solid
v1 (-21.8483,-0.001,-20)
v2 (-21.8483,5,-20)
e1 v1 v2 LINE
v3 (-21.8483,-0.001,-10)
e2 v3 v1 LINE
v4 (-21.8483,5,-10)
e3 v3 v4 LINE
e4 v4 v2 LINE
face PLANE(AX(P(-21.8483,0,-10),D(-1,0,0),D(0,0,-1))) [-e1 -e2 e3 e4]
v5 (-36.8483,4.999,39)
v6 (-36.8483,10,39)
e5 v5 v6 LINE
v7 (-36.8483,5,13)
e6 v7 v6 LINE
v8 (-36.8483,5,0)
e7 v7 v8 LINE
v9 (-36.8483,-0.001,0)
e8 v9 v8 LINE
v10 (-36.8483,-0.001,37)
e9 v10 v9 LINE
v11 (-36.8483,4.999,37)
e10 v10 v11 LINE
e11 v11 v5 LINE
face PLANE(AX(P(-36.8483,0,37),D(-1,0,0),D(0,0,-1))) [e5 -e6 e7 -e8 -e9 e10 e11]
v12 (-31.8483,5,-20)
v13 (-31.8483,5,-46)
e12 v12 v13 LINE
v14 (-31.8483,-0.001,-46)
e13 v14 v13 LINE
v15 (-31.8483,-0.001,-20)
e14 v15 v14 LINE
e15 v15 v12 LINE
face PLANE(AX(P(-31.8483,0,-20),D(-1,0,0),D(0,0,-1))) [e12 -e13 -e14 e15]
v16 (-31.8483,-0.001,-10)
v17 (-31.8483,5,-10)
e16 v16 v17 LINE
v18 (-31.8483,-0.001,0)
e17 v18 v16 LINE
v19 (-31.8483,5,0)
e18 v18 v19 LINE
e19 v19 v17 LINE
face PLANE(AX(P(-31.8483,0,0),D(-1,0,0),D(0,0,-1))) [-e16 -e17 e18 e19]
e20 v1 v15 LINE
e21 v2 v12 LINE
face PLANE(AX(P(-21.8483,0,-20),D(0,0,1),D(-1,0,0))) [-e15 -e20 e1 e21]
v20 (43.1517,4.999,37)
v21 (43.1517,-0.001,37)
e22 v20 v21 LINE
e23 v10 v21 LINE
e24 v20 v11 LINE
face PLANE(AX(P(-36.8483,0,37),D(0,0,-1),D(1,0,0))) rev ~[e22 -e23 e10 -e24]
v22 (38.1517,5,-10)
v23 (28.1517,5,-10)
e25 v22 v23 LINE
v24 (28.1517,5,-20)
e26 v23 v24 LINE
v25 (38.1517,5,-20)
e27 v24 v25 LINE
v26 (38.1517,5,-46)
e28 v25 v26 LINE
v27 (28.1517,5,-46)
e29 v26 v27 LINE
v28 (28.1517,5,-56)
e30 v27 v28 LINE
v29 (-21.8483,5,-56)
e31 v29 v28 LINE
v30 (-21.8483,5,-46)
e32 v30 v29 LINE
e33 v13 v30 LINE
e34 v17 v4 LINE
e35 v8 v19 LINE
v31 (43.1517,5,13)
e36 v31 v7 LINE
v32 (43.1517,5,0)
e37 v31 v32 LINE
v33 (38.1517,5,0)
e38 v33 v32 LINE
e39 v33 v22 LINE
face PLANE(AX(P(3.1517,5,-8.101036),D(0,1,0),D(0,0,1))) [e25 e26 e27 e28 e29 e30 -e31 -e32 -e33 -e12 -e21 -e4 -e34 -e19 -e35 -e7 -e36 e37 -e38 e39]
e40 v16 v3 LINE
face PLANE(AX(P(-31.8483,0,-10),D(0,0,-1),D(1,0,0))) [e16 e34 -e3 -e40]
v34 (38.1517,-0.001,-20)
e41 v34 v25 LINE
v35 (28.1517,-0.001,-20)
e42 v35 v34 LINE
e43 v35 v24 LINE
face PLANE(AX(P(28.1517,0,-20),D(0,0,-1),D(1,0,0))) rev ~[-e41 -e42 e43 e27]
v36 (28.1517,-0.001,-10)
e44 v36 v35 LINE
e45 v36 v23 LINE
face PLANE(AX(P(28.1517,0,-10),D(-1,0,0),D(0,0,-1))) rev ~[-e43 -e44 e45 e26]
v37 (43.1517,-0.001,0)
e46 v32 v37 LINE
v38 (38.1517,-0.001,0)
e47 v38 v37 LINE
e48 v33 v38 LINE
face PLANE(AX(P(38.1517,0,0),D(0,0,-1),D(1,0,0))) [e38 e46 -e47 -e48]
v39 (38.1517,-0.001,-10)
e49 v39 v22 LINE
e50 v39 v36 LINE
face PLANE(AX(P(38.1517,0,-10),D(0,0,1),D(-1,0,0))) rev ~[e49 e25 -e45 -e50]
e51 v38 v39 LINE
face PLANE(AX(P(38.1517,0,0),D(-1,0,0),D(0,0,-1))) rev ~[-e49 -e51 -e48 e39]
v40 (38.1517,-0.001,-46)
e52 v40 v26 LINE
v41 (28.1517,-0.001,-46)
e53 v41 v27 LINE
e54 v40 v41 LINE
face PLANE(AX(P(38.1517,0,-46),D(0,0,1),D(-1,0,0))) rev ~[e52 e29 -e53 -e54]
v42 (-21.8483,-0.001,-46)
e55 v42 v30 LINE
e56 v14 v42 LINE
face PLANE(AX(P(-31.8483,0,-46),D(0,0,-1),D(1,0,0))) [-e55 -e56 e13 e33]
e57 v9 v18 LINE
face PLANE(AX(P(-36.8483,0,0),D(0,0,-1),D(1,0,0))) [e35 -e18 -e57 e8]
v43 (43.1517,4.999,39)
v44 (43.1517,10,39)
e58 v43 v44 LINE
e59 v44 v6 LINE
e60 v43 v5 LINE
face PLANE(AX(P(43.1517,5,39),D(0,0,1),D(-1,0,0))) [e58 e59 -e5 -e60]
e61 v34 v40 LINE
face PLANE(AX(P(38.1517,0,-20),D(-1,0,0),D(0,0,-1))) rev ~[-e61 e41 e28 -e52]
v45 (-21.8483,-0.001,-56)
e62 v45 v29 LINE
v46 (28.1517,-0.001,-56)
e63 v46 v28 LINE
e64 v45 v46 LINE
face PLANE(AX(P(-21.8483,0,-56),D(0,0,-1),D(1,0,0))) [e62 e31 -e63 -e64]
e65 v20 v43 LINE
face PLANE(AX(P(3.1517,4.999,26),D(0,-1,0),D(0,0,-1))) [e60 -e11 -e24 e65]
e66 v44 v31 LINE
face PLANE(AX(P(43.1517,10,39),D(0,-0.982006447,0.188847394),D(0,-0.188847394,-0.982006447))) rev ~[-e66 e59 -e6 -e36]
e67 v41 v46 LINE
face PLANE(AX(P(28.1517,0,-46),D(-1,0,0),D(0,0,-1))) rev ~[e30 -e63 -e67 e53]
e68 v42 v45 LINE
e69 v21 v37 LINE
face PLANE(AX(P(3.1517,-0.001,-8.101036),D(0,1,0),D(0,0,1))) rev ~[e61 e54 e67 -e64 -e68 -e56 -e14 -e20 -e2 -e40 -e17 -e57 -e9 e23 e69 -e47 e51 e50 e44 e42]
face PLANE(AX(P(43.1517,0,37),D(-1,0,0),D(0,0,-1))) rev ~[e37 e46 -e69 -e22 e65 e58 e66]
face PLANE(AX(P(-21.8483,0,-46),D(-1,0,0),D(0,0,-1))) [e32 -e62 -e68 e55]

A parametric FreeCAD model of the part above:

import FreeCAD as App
import Part
import Sketcher
from FreeCAD import Vector
Q = App.Units.Quantity

doc = App.newDocument("Part")
body = doc.addObject("PartDesign::Body", "Body")

# Sketch on XZ plane
sketch1 = body.newObject("Sketcher::SketchObject", "Sketch")
sketch1.AttachmentSupport = (doc.getObject("XZ_Plane"), [""])
sketch1.MapMode = "FlatFace"
sketch1.addGeometry([
    Part.LineSegment(Vector(38.1517, -10, 0), Vector(38.1517, 0, 0)),  # 0
    Part.LineSegment(Vector(38.1517, 0, 0), Vector(43.1517, 0, 0)),  # 1
    Part.LineSegment(Vector(43.1517, 0, 0), Vector(43.1517, 37, 0)),  # 2
    Part.LineSegment(Vector(43.1517, 37, 0), Vector(-36.8483, 37, 0)),  # 3
    Part.LineSegment(Vector(-36.8483, 37, 0), Vector(-36.8483, 0, 0)),  # 4
    Part.LineSegment(Vector(-36.8483, 0, 0), Vector(-31.8483, 0, 0)),  # 5
    Part.LineSegment(Vector(-31.8483, 0, 0), Vector(-31.8483, -10, 0)),  # 6
    Part.LineSegment(Vector(-31.8483, -10, 0), Vector(-21.8483, -10, 0)),  # 7
    Part.LineSegment(Vector(-21.8483, -10, 0), Vector(-21.8483, -20, 0)),  # 8
    Part.LineSegment(Vector(-21.8483, -20, 0), Vector(-31.8483, -20, 0)),  # 9
    Part.LineSegment(Vector(-31.8483, -20, 0), Vector(-31.8483, -46, 0)),  # 10
    Part.LineSegment(Vector(-31.8483, -46, 0), Vector(-21.8483, -46, 0)),  # 11
    Part.LineSegment(Vector(-21.8483, -46, 0), Vector(-21.8483, -56, 0)),  # 12
    Part.LineSegment(Vector(-21.8483, -56, 0), Vector(28.1517, -56, 0)),  # 13
    Part.LineSegment(Vector(28.1517, -56, 0), Vector(28.1517, -46, 0)),  # 14
    Part.LineSegment(Vector(28.1517, -46, 0), Vector(38.1517, -46, 0)),  # 15
    Part.LineSegment(Vector(38.1517, -46, 0), Vector(38.1517, -20, 0)),  # 16
    Part.LineSegment(Vector(38.1517, -20, 0), Vector(28.1517, -20, 0)),  # 17
    Part.LineSegment(Vector(28.1517, -20, 0), Vector(28.1517, -10, 0)),  # 18
    Part.LineSegment(Vector(28.1517, -10, 0), Vector(38.1517, -10, 0)),  # 19
], False)
sketch1.addConstraint([
    Sketcher.Constraint("Coincident", 0, 2, 1, 1),
    Sketcher.Constraint("Coincident", 1, 2, 2, 1),
    Sketcher.Constraint("Coincident", 2, 2, 3, 1),
    Sketcher.Constraint("Coincident", 3, 2, 4, 1),
    Sketcher.Constraint("Coincident", 4, 2, 5, 1),
    Sketcher.Constraint("Coincident", 5, 2, 6, 1),
    Sketcher.Constraint("Coincident", 6, 2, 7, 1),
    Sketcher.Constraint("Coincident", 7, 2, 8, 1),
    Sketcher.Constraint("Coincident", 8, 2, 9, 1),
    Sketcher.Constraint("Coincident", 9, 2, 10, 1),
    Sketcher.Constraint("Coincident", 10, 2, 11, 1),
    Sketcher.Constraint("Coincident", 11, 2, 12, 1),
    Sketcher.Constraint("Coincident", 12, 2, 13, 1),
    Sketcher.Constraint("Coincident", 13, 2, 14, 1),
    Sketcher.Constraint("Coincident", 14, 2, 15, 1),
    Sketcher.Constraint("Coincident", 15, 2, 16, 1),
    Sketcher.Constraint("Coincident", 16, 2, 17, 1),
    Sketcher.Constraint("Coincident", 17, 2, 18, 1),
    Sketcher.Constraint("Coincident", 18, 2, 19, 1),
    Sketcher.Constraint("Coincident", 19, 2, 0, 1),
    Sketcher.Constraint("Vertical", 0),
    Sketcher.Constraint("Horizontal", 1),
    Sketcher.Constraint("Vertical", 2),
    Sketcher.Constraint("Horizontal", 3),
    Sketcher.Constraint("Vertical", 4),
    Sketcher.Constraint("Horizontal", 5),
    Sketcher.Constraint("Vertical", 6),
    Sketcher.Constraint("Horizontal", 7),
    Sketcher.Constraint("Vertical", 8),
    Sketcher.Constraint("Horizontal", 9),
    Sketcher.Constraint("Vertical", 10),
    Sketcher.Constraint("Horizontal", 11),
    Sketcher.Constraint("Vertical", 12),
    Sketcher.Constraint("Horizontal", 13),
    Sketcher.Constraint("Vertical", 14),
    Sketcher.Constraint("Horizontal", 15),
    Sketcher.Constraint("Vertical", 16),
    Sketcher.Constraint("Horizontal", 17),
    Sketcher.Constraint("Vertical", 18),
    Sketcher.Constraint("Horizontal", 19),
    Sketcher.Constraint("PointOnObject", 0, 2, -1),
    Sketcher.Constraint("PointOnObject", 4, 2, -1),
    Sketcher.Constraint("Horizontal", 11, 2, 14, 2),
    Sketcher.Constraint("Horizontal", 9, 2, 16, 2),
    Sketcher.Constraint("Horizontal", 7, 2, 18, 2),
    Sketcher.Constraint("Vertical", 6, 2, 9, 2),
    Sketcher.Constraint("Vertical", 8, 2, 11, 2),
    Sketcher.Constraint("Vertical", 0, 2, 15, 2),
    Sketcher.Constraint("Vertical", 14, 2, 17, 2),
    Sketcher.Constraint("Equal", 1, 5),
    Sketcher.Constraint("Equal", 11, 15),
    Sketcher.Constraint("Equal", 19, 0),
    Sketcher.Constraint("Equal", 6, 8),
    Sketcher.Constraint("Equal", 8, 12),
    Sketcher.Constraint("DistanceX", 1, 1, 1, 2, Q("5 mm")),
    Sketcher.Constraint("DistanceX", 3, 2, 3, 1, Q("80 mm")),
    Sketcher.Constraint("DistanceX", 7, 1, 7, 2, Q("10 mm")),
    Sketcher.Constraint("DistanceY", 2, 1, 2, 2, Q("37 mm")),
    Sketcher.Constraint("DistanceY", 10, 2, 10, 1, Q("26 mm")),
    Sketcher.Constraint("DistanceX", -1, 1, 0, 2, Q("38.1517 mm")),
])
pad1 = body.newObject("PartDesign::Pad", "Pad")
pad1.Profile = sketch1
pad1.Type = "TwoLengths"
pad1.Length = 5
pad1.Length2 = 0.001
pad1.Reversed = True

# Sketch on XZ plane
sketch2 = body.newObject("Sketcher::SketchObject", "Sketch001")
sketch2.AttachmentSupport = (doc.getObject("XZ_Plane"), [""])
sketch2.MapMode = "FlatFace"
sketch2.AttachmentOffset = App.Placement(Vector(0, 0, -5), App.Rotation())
sketch2.addGeometry([
    Part.LineSegment(Vector(-36.8483, 13, 0), Vector(-36.8483, 39, 0)),
    Part.LineSegment(Vector(-36.8483, 39, 0), Vector(43.1517, 39, 0)),
    Part.LineSegment(Vector(43.1517, 39, 0), Vector(43.1517, 13, 0)),
    Part.LineSegment(Vector(43.1517, 13, 0), Vector(-36.8483, 13, 0)),
], False)
sketch2.addConstraint([
    Sketcher.Constraint("Coincident", 0, 2, 1, 1),
    Sketcher.Constraint("Coincident", 1, 2, 2, 1),
    Sketcher.Constraint("Coincident", 2, 2, 3, 1),
    Sketcher.Constraint("Coincident", 3, 2, 0, 1),
    Sketcher.Constraint("Vertical", 0),
    Sketcher.Constraint("Horizontal", 1),
    Sketcher.Constraint("Vertical", 2),
    Sketcher.Constraint("Horizontal", 3),
    Sketcher.Constraint("DistanceX", 1, 1, 1, 2, Q("80 mm")),
    Sketcher.Constraint("DistanceY", 0, 1, 0, 2, Q("26 mm")),
    Sketcher.Constraint("DistanceY", -1, 1, 0, 2, Q("39 mm")),
    Sketcher.Constraint("DistanceX", 0, 2, -1, 1, Q("36.8483 mm")),
])
pad2 = body.newObject("PartDesign::Pad", "Pad001")
pad2.Profile = sketch2
pad2.Type = "TwoLengths"
pad2.Length = 5
pad2.Length2 = 0.001
pad2.Reversed = True

# Sketch on YZ plane
sketch3 = body.newObject("Sketcher::SketchObject", "Sketch002")
sketch3.AttachmentSupport = (doc.getObject("YZ_Plane"), [""])
sketch3.MapMode = "FlatFace"
sketch3.AttachmentOffset = App.Placement(Vector(0, 0, 43.1517), App.Rotation())
sketch3.addGeometry([
    Part.LineSegment(Vector(12.8827, 9.5199, 0), Vector(10, 39, 0)),
    Part.LineSegment(Vector(10, 39, 0), Vector(5, 13, 0)),
    Part.LineSegment(Vector(5, 13, 0), Vector(12.8827, 9.5199, 0)),
], False)
sketch3.addConstraint([
    Sketcher.Constraint("Coincident", 0, 2, 1, 1),
    Sketcher.Constraint("Coincident", 1, 2, 2, 1),
    Sketcher.Constraint("Coincident", 2, 2, 0, 1),
    Sketcher.Constraint("DistanceX", -1, 1, 0, 2, Q("10 mm")),
    Sketcher.Constraint("DistanceY", -1, 1, 0, 2, Q("39 mm")),
    Sketcher.Constraint("DistanceX", -1, 1, 1, 2, Q("5 mm")),
    Sketcher.Constraint("DistanceY", -1, 1, 1, 2, Q("13 mm")),
    Sketcher.Constraint("Angle", 2, Q("-23.8208 deg")),
    Sketcher.Constraint("DistanceY", -1, 1, 2, 2, Q("9.52 mm")),
])
pocket1 = body.newObject("PartDesign::Pocket", "Pocket")
pocket1.Profile = sketch3
pocket1.Length = 96.3179

doc.recompute()
